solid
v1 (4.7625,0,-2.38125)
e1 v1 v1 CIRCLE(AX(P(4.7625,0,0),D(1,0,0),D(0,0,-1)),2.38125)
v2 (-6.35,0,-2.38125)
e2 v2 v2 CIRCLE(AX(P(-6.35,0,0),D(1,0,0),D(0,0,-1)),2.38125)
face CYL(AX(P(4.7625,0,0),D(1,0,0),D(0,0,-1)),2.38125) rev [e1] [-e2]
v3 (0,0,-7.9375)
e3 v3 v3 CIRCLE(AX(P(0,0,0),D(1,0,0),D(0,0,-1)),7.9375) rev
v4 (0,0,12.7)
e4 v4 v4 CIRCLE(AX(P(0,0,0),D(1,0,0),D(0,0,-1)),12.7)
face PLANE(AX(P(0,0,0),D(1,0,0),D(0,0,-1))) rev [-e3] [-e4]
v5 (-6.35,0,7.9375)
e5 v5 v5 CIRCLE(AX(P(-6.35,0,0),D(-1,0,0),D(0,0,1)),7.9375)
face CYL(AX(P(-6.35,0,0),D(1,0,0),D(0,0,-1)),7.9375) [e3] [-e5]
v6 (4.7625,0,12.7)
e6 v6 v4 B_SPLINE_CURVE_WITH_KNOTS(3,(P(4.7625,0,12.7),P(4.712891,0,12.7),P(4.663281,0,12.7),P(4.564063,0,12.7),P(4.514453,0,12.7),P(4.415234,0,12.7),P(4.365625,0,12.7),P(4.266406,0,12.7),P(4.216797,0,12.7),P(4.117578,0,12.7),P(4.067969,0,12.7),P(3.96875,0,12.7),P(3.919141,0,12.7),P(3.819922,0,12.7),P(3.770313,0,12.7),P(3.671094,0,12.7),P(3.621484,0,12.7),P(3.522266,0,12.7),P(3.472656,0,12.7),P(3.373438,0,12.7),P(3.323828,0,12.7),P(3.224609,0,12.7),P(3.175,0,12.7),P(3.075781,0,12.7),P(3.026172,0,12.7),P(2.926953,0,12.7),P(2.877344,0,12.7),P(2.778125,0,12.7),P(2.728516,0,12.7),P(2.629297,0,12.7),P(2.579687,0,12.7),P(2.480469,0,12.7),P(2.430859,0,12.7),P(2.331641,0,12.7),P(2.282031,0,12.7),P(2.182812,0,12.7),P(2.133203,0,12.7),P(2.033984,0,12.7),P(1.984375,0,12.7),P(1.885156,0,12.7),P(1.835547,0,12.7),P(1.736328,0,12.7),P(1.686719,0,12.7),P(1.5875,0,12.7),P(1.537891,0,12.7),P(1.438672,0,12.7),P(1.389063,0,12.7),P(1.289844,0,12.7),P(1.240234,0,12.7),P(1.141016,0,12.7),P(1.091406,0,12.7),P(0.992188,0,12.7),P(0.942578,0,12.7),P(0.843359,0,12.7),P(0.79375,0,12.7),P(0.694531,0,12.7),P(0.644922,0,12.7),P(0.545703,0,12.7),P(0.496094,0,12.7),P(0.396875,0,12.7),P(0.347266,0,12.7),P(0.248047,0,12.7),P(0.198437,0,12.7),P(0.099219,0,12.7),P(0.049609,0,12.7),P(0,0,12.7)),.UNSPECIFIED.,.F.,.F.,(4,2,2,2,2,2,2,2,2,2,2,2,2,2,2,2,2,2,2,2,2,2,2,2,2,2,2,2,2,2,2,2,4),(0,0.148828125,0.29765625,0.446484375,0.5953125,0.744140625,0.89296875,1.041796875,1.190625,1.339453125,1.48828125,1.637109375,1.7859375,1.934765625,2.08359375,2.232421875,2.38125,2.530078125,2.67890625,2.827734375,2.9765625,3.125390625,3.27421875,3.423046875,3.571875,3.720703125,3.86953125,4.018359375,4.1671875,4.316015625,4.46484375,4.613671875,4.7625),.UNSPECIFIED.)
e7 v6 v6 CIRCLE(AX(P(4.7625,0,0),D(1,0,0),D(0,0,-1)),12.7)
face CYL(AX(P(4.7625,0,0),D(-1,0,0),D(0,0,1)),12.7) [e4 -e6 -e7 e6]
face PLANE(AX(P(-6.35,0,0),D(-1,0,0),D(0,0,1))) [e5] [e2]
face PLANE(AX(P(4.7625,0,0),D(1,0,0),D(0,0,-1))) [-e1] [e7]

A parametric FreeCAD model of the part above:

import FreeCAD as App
import Part
import Sketcher
Q = App.Units.Quantity

doc = App.newDocument("Part")
body = doc.addObject("PartDesign::Body", "Body")

# Sketch on YZ plane
sketch1 = body.newObject("Sketcher::SketchObject", "Sketch")
sketch1.AttachmentSupport = (doc.getObject("YZ_Plane"), [""])
sketch1.MapMode = "FlatFace"
sketch1.addGeometry(Part.Circle(App.Vector(0, 0, 0), App.Vector(0, 0, 1), 13), False)
sketch1.addConstraint([
    Sketcher.Constraint("Coincident", 0, 3, -1, 1),
    Sketcher.Constraint("Diameter", 0, Q("1 in")),
])
pad1 = body.newObject("PartDesign::Pad", "Pad")
pad1.Profile = sketch1
pad1.Length = Q("0.1875 in")

# Sketch on YZ plane
sketch2 = body.newObject("Sketcher::SketchObject", "Sketch001")
sketch2.AttachmentSupport = (doc.getObject("YZ_Plane"), [""])
sketch2.MapMode = "FlatFace"
sketch2.addGeometry(Part.Circle(App.Vector(0, 0, 0), App.Vector(0, 0, 1), 8), False)
sketch2.addConstraint([
    Sketcher.Constraint("Coincident", 0, 3, -1, 1),
    Sketcher.Constraint("Diameter", 0, Q("0.625 in")),
])
pad2 = body.newObject("PartDesign::Pad", "Pad001")
pad2.Profile = sketch2
pad2.Length = Q("0.25 in")
pad2.Reversed = True

# Sketch on YZ plane
sketch3 = body.newObject("Sketcher::SketchObject", "Sketch002")
sketch3.AttachmentSupport = (doc.getObject("YZ_Plane"), [""])
sketch3.MapMode = "FlatFace"
sketch3.AttachmentOffset = App.Placement(App.Vector(0, 0, 0.1875 * 25.4), App.Rotation())
sketch3.addGeometry(Part.Circle(App.Vector(0, 0, 0), App.Vector(0, 0, 1), 2.4), False)
sketch3.addConstraint([
    Sketcher.Constraint("Coincident", 0, 3, -1, 1),
    Sketcher.Constraint("Diameter", 0, Q("0.1875 in")),
])
doc.recompute()
hole = body.newObject("PartDesign::Hole", "Hole")
hole.Profile = sketch3
hole.ThreadType = "None"
hole.Diameter = Q("0.1875 in")
hole.DepthType = "ThroughAll"

doc.recompute()
